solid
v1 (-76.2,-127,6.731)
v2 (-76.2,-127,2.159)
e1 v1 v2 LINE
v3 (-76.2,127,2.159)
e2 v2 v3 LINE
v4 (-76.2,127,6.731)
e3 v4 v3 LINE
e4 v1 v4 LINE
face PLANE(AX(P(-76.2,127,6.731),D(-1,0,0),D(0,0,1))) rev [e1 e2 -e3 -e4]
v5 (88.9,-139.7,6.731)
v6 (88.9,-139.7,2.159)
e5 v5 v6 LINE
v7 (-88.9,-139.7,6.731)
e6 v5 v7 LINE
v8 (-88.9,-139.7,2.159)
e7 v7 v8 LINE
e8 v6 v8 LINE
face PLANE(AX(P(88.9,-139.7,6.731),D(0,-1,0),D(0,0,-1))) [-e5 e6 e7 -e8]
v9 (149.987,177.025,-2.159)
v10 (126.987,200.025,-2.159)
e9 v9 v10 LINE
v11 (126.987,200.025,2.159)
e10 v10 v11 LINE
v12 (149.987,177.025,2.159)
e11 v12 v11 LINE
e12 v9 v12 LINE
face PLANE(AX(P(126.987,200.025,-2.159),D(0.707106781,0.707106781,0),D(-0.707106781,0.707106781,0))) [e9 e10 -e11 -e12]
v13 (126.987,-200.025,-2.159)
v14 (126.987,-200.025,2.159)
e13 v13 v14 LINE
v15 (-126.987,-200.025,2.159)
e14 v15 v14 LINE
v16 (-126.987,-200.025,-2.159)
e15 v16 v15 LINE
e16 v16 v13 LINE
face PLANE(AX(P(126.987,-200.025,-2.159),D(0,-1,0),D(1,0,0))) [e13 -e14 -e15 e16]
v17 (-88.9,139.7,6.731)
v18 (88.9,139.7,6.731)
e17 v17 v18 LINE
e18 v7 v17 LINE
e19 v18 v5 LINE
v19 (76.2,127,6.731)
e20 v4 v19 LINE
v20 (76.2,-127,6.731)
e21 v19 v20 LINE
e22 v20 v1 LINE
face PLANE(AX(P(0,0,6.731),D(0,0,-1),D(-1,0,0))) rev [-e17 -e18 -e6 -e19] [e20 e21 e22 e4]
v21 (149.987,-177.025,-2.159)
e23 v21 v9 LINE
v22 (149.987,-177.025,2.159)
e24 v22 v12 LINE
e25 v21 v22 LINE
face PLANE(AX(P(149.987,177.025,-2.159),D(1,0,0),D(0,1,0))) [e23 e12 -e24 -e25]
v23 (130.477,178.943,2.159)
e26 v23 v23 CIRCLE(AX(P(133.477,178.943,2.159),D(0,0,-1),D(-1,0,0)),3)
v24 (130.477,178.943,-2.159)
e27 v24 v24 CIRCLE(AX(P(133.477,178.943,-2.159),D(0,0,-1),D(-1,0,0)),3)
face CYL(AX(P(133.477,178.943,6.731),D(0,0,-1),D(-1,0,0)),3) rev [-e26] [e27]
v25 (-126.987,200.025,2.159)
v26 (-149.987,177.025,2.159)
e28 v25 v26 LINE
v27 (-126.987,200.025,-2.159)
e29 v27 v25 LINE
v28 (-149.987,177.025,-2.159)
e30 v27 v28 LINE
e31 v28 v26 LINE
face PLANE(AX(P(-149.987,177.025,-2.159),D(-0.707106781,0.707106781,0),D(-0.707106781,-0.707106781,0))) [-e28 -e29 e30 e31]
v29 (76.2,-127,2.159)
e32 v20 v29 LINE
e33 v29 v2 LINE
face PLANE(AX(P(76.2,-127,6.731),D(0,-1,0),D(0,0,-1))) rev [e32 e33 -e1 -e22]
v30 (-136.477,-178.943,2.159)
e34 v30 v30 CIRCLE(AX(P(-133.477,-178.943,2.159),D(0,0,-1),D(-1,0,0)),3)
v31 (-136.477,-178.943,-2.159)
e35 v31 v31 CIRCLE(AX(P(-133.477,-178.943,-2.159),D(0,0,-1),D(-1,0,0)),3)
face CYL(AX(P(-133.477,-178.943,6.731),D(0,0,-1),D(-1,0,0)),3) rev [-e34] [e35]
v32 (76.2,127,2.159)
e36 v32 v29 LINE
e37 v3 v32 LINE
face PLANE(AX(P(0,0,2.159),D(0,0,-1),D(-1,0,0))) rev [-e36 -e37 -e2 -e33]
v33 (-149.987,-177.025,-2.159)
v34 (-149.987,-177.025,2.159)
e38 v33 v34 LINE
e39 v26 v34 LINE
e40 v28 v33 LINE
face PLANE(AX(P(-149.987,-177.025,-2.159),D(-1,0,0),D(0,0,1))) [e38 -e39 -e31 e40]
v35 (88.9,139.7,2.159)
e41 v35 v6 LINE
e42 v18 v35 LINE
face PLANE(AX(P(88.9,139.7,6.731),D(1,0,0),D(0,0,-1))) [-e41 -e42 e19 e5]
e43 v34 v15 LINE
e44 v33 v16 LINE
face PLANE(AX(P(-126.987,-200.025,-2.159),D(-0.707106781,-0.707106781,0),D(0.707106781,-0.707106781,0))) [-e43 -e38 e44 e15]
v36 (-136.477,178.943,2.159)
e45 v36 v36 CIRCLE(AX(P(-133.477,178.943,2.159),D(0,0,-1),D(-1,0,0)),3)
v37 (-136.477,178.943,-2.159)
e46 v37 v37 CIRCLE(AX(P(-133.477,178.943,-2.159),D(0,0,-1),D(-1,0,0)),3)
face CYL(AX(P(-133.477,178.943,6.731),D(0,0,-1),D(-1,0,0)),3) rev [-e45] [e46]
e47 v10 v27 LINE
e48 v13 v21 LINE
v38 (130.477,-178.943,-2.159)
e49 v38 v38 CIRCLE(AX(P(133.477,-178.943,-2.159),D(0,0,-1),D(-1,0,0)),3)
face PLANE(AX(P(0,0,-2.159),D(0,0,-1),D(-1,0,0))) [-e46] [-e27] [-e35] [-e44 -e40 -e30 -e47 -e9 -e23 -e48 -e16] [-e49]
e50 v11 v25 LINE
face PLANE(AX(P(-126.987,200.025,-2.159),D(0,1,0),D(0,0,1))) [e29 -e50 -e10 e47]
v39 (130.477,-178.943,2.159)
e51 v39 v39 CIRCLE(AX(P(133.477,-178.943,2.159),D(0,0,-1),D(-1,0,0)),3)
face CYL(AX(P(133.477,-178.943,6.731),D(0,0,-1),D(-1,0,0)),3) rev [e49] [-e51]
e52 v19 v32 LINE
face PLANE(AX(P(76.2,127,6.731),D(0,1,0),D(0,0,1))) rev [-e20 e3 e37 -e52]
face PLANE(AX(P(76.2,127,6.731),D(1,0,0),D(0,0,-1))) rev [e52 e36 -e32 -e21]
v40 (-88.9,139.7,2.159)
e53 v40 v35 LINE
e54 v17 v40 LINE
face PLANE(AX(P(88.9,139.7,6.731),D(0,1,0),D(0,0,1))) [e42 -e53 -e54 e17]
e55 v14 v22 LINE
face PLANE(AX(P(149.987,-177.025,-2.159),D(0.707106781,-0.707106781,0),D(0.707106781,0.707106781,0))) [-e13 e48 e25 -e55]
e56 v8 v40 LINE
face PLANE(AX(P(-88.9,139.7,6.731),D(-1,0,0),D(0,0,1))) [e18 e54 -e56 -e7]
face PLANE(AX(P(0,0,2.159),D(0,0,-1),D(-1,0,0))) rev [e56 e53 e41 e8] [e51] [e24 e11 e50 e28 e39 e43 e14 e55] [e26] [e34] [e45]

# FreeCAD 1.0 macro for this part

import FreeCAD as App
import Part
import Sketcher
from FreeCAD import Vector
Q = App.Units.Quantity

doc = App.newDocument("Part")
body = doc.addObject("PartDesign::Body", "Body")

# Sketch on XY plane
sketch1 = body.newObject("Sketcher::SketchObject", "Sketch")
sketch1.AttachmentSupport = (doc.getObject("XY_Plane"), [""])
sketch1.MapMode = "FlatFace"
sketch1.addGeometry(Part.LineSegment(Vector(-127, 200, 0), Vector(-150, 177, 0)), False)
sketch1.addGeometry(Part.LineSegment(Vector(-150, 177, 0), Vector(-150, -177, 0)), False)
sketch1.addGeometry(Part.LineSegment(Vector(-150, -177, 0), Vector(-127, -200, 0)), False)
sketch1.addGeometry(Part.LineSegment(Vector(-127, -200, 0), Vector(127, -200, 0)), False)
sketch1.addGeometry(Part.LineSegment(Vector(127, -200, 0), Vector(150, -177, 0)), False)
sketch1.addGeometry(Part.LineSegment(Vector(150, -177, 0), Vector(150, 177, 0)), False)
sketch1.addGeometry(Part.LineSegment(Vector(150, 177, 0), Vector(127, 200, 0)), False)
sketch1.addGeometry(Part.LineSegment(Vector(127, 200, 0), Vector(-127, 200, 0)), False)
sketch1.addConstraint(Sketcher.Constraint("Coincident", 0, 2, 1, 1))
sketch1.addConstraint(Sketcher.Constraint("Coincident", 1, 2, 2, 1))
sketch1.addConstraint(Sketcher.Constraint("Coincident", 2, 2, 3, 1))
sketch1.addConstraint(Sketcher.Constraint("Coincident", 3, 2, 4, 1))
sketch1.addConstraint(Sketcher.Constraint("Coincident", 4, 2, 5, 1))
sketch1.addConstraint(Sketcher.Constraint("Coincident", 5, 2, 6, 1))
sketch1.addConstraint(Sketcher.Constraint("Coincident", 6, 2, 7, 1))
sketch1.addConstraint(Sketcher.Constraint("Coincident", 7, 2, 0, 1))
sketch1.addConstraint(Sketcher.Constraint("Vertical", 1))
sketch1.addConstraint(Sketcher.Constraint("Horizontal", 3))
sketch1.addConstraint(Sketcher.Constraint("Vertical", 5))
sketch1.addConstraint(Sketcher.Constraint("Horizontal", 7))
sketch1.addConstraint(Sketcher.Constraint("Symmetric", 0, 2, 4, 2, -1, 1))
sketch1.addConstraint(Sketcher.Constraint("Symmetric", 2, 2, 6, 2, -1, 1))
sketch1.addConstraint(Sketcher.Constraint("Perpendicular", 0, 2))
sketch1.addConstraint(Sketcher.Constraint("Perpendicular", 2, 4))
sketch1.addConstraint(Sketcher.Constraint("Perpendicular", 4, 6))
sketch1.addConstraint(Sketcher.Constraint("Horizontal", 1, 2, 4, 2))
sketch1.addConstraint(Sketcher.Constraint("Vertical", 3, 2, 6, 2))
sketch1.addConstraint(Sketcher.Constraint("DistanceX", 1, 2, 4, 2, Q("11.81 in")))
sketch1.addConstraint(Sketcher.Constraint("DistanceY", 3, 2, 6, 2, Q("15.75 in")))
sketch1.addConstraint(Sketcher.Constraint("DistanceX", 3, 1, 3, 2, 253.974))
pad1 = body.newObject("PartDesign::Pad", "Pad")
pad1.Profile = sketch1
pad1.Type = "TwoLengths"
pad1.Length = Q("0.085 in")
pad1.Length2 = Q("0.085 in")

# Sketch on XY plane
sketch2 = body.newObject("Sketcher::SketchObject", "Sketch001")
sketch2.AttachmentSupport = (doc.getObject("XY_Plane"), [""])
sketch2.MapMode = "FlatFace"
sketch2.AttachmentOffset = App.Placement(Vector(0, 0, -0.085 * 25.4), App.Rotation())
sketch2.addGeometry(Part.LineSegment(Vector(89, 140, 0), Vector(89, -140, 0)), False)
sketch2.addGeometry(Part.LineSegment(Vector(89, -140, 0), Vector(-89, -140, 0)), False)
sketch2.addGeometry(Part.LineSegment(Vector(-89, -140, 0), Vector(-89, 140, 0)), False)
sketch2.addGeometry(Part.LineSegment(Vector(-89, 140, 0), Vector(89, 140, 0)), False)
sketch2.addGeometry(Part.LineSegment(Vector(-76, -127, 0), Vector(76, -127, 0)), False)
sketch2.addGeometry(Part.LineSegment(Vector(76, -127, 0), Vector(76, 127, 0)), False)
sketch2.addGeometry(Part.LineSegment(Vector(76, 127, 0), Vector(-76, 127, 0)), False)
sketch2.addGeometry(Part.LineSegment(Vector(-76, 127, 0), Vector(-76, -127, 0)), False)
sketch2.addConstraint(Sketcher.Constraint("Coincident", 0, 2, 1, 1))
sketch2.addConstraint(Sketcher.Constraint("Coincident", 1, 2, 2, 1))
sketch2.addConstraint(Sketcher.Constraint("Coincident", 2, 2, 3, 1))
sketch2.addConstraint(Sketcher.Constraint("Coincident", 3, 2, 0, 1))
sketch2.addConstraint(Sketcher.Constraint("Coincident", 4, 2, 5, 1))
sketch2.addConstraint(Sketcher.Constraint("Coincident", 5, 2, 6, 1))
sketch2.addConstraint(Sketcher.Constraint("Coincident", 6, 2, 7, 1))
sketch2.addConstraint(Sketcher.Constraint("Coincident", 7, 2, 4, 1))
sketch2.addConstraint(Sketcher.Constraint("Vertical", 0))
sketch2.addConstraint(Sketcher.Constraint("Horizontal", 1))
sketch2.addConstraint(Sketcher.Constraint("Vertical", 2))
sketch2.addConstraint(Sketcher.Constraint("Horizontal", 3))
sketch2.addConstraint(Sketcher.Constraint("Horizontal", 4))
sketch2.addConstraint(Sketcher.Constraint("Vertical", 5))
sketch2.addConstraint(Sketcher.Constraint("Horizontal", 6))
sketch2.addConstraint(Sketcher.Constraint("Vertical", 7))
sketch2.addConstraint(Sketcher.Constraint("Symmetric", 0, 2, 2, 2, -1, 1))
sketch2.addConstraint(Sketcher.Constraint("Symmetric", 4, 2, 6, 2, -1, 1))
sketch2.addConstraint(Sketcher.Constraint("DistanceX", 1, 2, 1, 1, Q("7 in")))
sketch2.addConstraint(Sketcher.Constraint("DistanceX", 4, 1, 4, 2, Q("6 in")))
sketch2.addConstraint(Sketcher.Constraint("DistanceY", 0, 2, 0, 1, Q("11 in")))
sketch2.addConstraint(Sketcher.Constraint("DistanceY", 5, 1, 5, 2, Q("10 in")))
pad2 = body.newObject("PartDesign::Pad", "Pad001")
pad2.Profile = sketch2
pad2.Length = Q("0.35 in")

# Sketch on XY plane
sketch3 = body.newObject("Sketcher::SketchObject", "Sketch002")
sketch3.AttachmentSupport = (doc.getObject("XY_Plane"), [""])
sketch3.MapMode = "FlatFace"
sketch3.AttachmentOffset = App.Placement(Vector(0, 0, -0.085 * 25.4), App.Rotation())
sketch3.addGeometry(Part.Circle(Vector(-133.5, 178.9, 0), Vector(0, 0, 1), 3), False)
sketch3.addGeometry(Part.Circle(Vector(133.5, 178.9, 0), Vector(0, 0, 1), 3), False)
sketch3.addGeometry(Part.Circle(Vector(133.5, -178.9, 0), Vector(0, 0, 1), 3), False)
sketch3.addGeometry(Part.Circle(Vector(-133.5, -178.9, 0), Vector(0, 0, 1), 3), False)
sketch3.addConstraint(Sketcher.Constraint("Equal", 0, 1))
sketch3.addConstraint(Sketcher.Constraint("Equal", 1, 2))
sketch3.addConstraint(Sketcher.Constraint("Equal", 2, 3))
sketch3.addConstraint(Sketcher.Constraint("Symmetric", 0, 3, 2, 3, -1, 1))
sketch3.addConstraint(Sketcher.Constraint("Symmetric", 1, 3, 3, 3, -1, 1))
sketch3.addConstraint(Sketcher.Constraint("Symmetric", 0, 3, 1, 3, -2))
sketch3.addConstraint(Sketcher.Constraint("Diameter", 0, 6.0))
sketch3.addConstraint(Sketcher.Constraint("DistanceX", 0, 3, 1, 3, Q("10.51 in")))
sketch3.addConstraint(Sketcher.Constraint("DistanceY", 2, 3, 1, 3, Q("14.09 in")))
pocket1 = body.newObject("PartDesign::Pocket", "Pocket")
pocket1.Profile = sketch3
pocket1.Type = "ThroughAll"
pocket1.Reversed = True

doc.recompute()
